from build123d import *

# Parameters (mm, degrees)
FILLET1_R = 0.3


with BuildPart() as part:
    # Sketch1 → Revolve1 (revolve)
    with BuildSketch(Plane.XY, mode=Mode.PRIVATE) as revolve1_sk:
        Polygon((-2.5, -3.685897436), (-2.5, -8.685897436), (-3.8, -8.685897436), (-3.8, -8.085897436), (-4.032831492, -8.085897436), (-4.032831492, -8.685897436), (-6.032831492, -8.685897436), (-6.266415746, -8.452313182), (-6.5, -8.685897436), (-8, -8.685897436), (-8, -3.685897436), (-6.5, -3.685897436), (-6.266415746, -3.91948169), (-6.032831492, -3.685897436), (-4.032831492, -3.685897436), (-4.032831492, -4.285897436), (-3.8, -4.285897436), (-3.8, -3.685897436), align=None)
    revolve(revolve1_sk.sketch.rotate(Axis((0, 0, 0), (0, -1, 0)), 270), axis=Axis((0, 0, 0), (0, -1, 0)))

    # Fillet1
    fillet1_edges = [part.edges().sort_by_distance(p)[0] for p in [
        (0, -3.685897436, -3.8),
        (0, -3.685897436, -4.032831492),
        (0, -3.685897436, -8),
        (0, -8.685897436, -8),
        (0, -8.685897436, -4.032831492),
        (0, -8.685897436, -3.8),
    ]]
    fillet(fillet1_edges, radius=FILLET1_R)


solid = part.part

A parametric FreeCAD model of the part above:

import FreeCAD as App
import Part
import Sketcher
from FreeCAD import Vector


def edges_at(feature, points):
    """Names of the edges that pass closest to the given points."""
    edges = feature.Shape.Edges
    near = lambda p: min(range(len(edges)), key=lambda i: edges[i].distToShape(Part.Vertex(*p))[0])
    return sorted({f"Edge{near(p) + 1}" for p in points})

doc = App.newDocument("Part")
body = doc.addObject("PartDesign::Body", "Body")

sketch1 = body.newObject("Sketcher::SketchObject", "Sketch")
sketch1.AttachmentSupport = (doc.getObject("XY_Plane"), [""])
sketch1.MapMode = "FlatFace"
sketch1.addGeometry(Part.LineSegment(Vector(-2.5, -8.69, 0), Vector(-2.5, -3.69, 0)), False)
sketch1.addGeometry(Part.LineSegment(Vector(-2.5, -3.69, 0), Vector(-3.8, -3.69, 0)), False)
sketch1.addGeometry(Part.LineSegment(Vector(-3.8, -3.69, 0), Vector(-3.8, -4.29, 0)), False)
sketch1.addGeometry(Part.LineSegment(Vector(-3.8, -4.29, 0), Vector(-4.03, -4.29, 0)), False)
sketch1.addGeometry(Part.LineSegment(Vector(-4.03, -4.29, 0), Vector(-4.03, -3.69, 0)), False)
sketch1.addGeometry(Part.LineSegment(Vector(-4.03, -3.69, 0), Vector(-6.03, -3.69, 0)), False)
sketch1.addGeometry(Part.LineSegment(Vector(-6.03, -3.69, 0), Vector(-6.27, -3.92, 0)), False)
sketch1.addGeometry(Part.LineSegment(Vector(-6.27, -3.92, 0), Vector(-6.5, -3.69, 0)), False)
sketch1.addGeometry(Part.LineSegment(Vector(-6.5, -3.69, 0), Vector(-8, -3.69, 0)), False)
sketch1.addGeometry(Part.LineSegment(Vector(-8, -3.69, 0), Vector(-8, -8.69, 0)), False)
sketch1.addGeometry(Part.LineSegment(Vector(-8, -8.69, 0), Vector(-6.5, -8.69, 0)), False)
sketch1.addGeometry(Part.LineSegment(Vector(-6.5, -8.69, 0), Vector(-6.27, -8.45, 0)), False)
sketch1.addGeometry(Part.LineSegment(Vector(-6.27, -8.45, 0), Vector(-6.03, -8.69, 0)), False)
sketch1.addGeometry(Part.LineSegment(Vector(-6.03, -8.69, 0), Vector(-4.03, -8.69, 0)), False)
sketch1.addGeometry(Part.LineSegment(Vector(-4.03, -8.69, 0), Vector(-4.03, -8.09, 0)), False)
sketch1.addGeometry(Part.LineSegment(Vector(-4.03, -8.09, 0), Vector(-3.8, -8.09, 0)), False)
sketch1.addGeometry(Part.LineSegment(Vector(-3.8, -8.09, 0), Vector(-3.8, -8.69, 0)), False)
sketch1.addGeometry(Part.LineSegment(Vector(-3.8, -8.69, 0), Vector(-2.5, -8.69, 0)), False)
sketch1.addConstraint(Sketcher.Constraint("Coincident", 0, 2, 1, 1))
sketch1.addConstraint(Sketcher.Constraint("Coincident", 1, 2, 2, 1))
sketch1.addConstraint(Sketcher.Constraint("Coincident", 2, 2, 3, 1))
sketch1.addConstraint(Sketcher.Constraint("Coincident", 3, 2, 4, 1))
sketch1.addConstraint(Sketcher.Constraint("Coincident", 4, 2, 5, 1))
sketch1.addConstraint(Sketcher.Constraint("Coincident", 5, 2, 6, 1))
sketch1.addConstraint(Sketcher.Constraint("Coincident", 6, 2, 7, 1))
sketch1.addConstraint(Sketcher.Constraint("Coincident", 7, 2, 8, 1))
sketch1.addConstraint(Sketcher.Constraint("Coincident", 8, 2, 9, 1))
sketch1.addConstraint(Sketcher.Constraint("Coincident", 9, 2, 10, 1))
sketch1.addConstraint(Sketcher.Constraint("Coincident", 10, 2, 11, 1))
sketch1.addConstraint(Sketcher.Constraint("Coincident", 11, 2, 12, 1))
sketch1.addConstraint(Sketcher.Constraint("Coincident", 12, 2, 13, 1))
sketch1.addConstraint(Sketcher.Constraint("Coincident", 13, 2, 14, 1))
sketch1.addConstraint(Sketcher.Constraint("Coincident", 14, 2, 15, 1))
sketch1.addConstraint(Sketcher.Constraint("Coincident", 15, 2, 16, 1))
sketch1.addConstraint(Sketcher.Constraint("Coincident", 16, 2, 17, 1))
sketch1.addConstraint(Sketcher.Constraint("Coincident", 17, 2, 0, 1))
sketch1.addConstraint(Sketcher.Constraint("Vertical", 0))
sketch1.addConstraint(Sketcher.Constraint("Horizontal", 1))
sketch1.addConstraint(Sketcher.Constraint("Vertical", 2))
sketch1.addConstraint(Sketcher.Constraint("Horizontal", 3))
sketch1.addConstraint(Sketcher.Constraint("Vertical", 4))
sketch1.addConstraint(Sketcher.Constraint("Horizontal", 5))
sketch1.addConstraint(Sketcher.Constraint("Horizontal", 8))
sketch1.addConstraint(Sketcher.Constraint("Vertical", 9))
sketch1.addConstraint(Sketcher.Constraint("Horizontal", 10))
sketch1.addConstraint(Sketcher.Constraint("Horizontal", 13))
sketch1.addConstraint(Sketcher.Constraint("Vertical", 14))
sketch1.addConstraint(Sketcher.Constraint("Horizontal", 15))
sketch1.addConstraint(Sketcher.Constraint("Vertical", 16))
sketch1.addConstraint(Sketcher.Constraint("Horizontal", 17))
sketch1.addConstraint(Sketcher.Constraint("Perpendicular", 6, 7))
sketch1.addConstraint(Sketcher.Constraint("Perpendicular", 7, 11))
sketch1.addConstraint(Sketcher.Constraint("Perpendicular", 11, 12))
sketch1.addConstraint(Sketcher.Constraint("Horizontal", 1, 2, 4, 2))
sketch1.addConstraint(Sketcher.Constraint("Horizontal", 5, 2, 7, 2))
sketch1.addConstraint(Sketcher.Constraint("Horizontal", 10, 2, 12, 2))
sketch1.addConstraint(Sketcher.Constraint("Horizontal", 13, 2, 16, 2))
sketch1.addConstraint(Sketcher.Constraint("Vertical", 7, 2, 10, 2))
sketch1.addConstraint(Sketcher.Constraint("Vertical", 6, 2, 11, 2))
sketch1.addConstraint(Sketcher.Constraint("Vertical", 5, 2, 12, 2))
sketch1.addConstraint(Sketcher.Constraint("Vertical", 4, 2, 13, 2))
sketch1.addConstraint(Sketcher.Constraint("Vertical", 2, 2, 15, 2))
sketch1.addConstraint(Sketcher.Constraint("Equal", 4, 14))
sketch1.addConstraint(Sketcher.Constraint("DistanceX", 5, 2, 5, 1, 2.0))
sketch1.addConstraint(Sketcher.Constraint("DistanceY", 0, 1, 0, 2, 5.0))
sketch1.addConstraint(Sketcher.Constraint("DistanceX", 1, 2, 1, 1, 1.3))
sketch1.addConstraint(Sketcher.Constraint("DistanceX", 8, 2, 8, 1, 1.5))
sketch1.addConstraint(Sketcher.Constraint("DistanceY", 2, 2, 2, 1, 0.6))
sketch1.addConstraint(Sketcher.Constraint("DistanceX", 8, 2, -1, 1, 8.0))
sketch1.addConstraint(Sketcher.Constraint("DistanceX", 0, 2, -1, 1, 2.5))
sketch1.addConstraint(Sketcher.Constraint("DistanceX", 3, 2, 3, 1, 0.232831))
sketch1.addConstraint(Sketcher.Constraint("DistanceY", 6, 2, -1, 1, 3.919482))
revolution = body.newObject("PartDesign::Revolution", "Revolution")
revolution.Profile = sketch1
revolution.ReferenceAxis = (sketch1, ["V_Axis"])
revolution.Angle = 360
doc.recompute()

fillet = body.newObject("PartDesign::Fillet", "Fillet")
fillet.Base = (revolution, edges_at(revolution, [
    (0, -3.686, -3.8),
    (0, -3.686, -4.033),
    (0, -3.686, -8),
    (0, -8.686, -8),
    (0, -8.686, -4.033),
    (0, -8.686, -3.8),
]))
fillet.Radius = 0.3

doc.recompute()
